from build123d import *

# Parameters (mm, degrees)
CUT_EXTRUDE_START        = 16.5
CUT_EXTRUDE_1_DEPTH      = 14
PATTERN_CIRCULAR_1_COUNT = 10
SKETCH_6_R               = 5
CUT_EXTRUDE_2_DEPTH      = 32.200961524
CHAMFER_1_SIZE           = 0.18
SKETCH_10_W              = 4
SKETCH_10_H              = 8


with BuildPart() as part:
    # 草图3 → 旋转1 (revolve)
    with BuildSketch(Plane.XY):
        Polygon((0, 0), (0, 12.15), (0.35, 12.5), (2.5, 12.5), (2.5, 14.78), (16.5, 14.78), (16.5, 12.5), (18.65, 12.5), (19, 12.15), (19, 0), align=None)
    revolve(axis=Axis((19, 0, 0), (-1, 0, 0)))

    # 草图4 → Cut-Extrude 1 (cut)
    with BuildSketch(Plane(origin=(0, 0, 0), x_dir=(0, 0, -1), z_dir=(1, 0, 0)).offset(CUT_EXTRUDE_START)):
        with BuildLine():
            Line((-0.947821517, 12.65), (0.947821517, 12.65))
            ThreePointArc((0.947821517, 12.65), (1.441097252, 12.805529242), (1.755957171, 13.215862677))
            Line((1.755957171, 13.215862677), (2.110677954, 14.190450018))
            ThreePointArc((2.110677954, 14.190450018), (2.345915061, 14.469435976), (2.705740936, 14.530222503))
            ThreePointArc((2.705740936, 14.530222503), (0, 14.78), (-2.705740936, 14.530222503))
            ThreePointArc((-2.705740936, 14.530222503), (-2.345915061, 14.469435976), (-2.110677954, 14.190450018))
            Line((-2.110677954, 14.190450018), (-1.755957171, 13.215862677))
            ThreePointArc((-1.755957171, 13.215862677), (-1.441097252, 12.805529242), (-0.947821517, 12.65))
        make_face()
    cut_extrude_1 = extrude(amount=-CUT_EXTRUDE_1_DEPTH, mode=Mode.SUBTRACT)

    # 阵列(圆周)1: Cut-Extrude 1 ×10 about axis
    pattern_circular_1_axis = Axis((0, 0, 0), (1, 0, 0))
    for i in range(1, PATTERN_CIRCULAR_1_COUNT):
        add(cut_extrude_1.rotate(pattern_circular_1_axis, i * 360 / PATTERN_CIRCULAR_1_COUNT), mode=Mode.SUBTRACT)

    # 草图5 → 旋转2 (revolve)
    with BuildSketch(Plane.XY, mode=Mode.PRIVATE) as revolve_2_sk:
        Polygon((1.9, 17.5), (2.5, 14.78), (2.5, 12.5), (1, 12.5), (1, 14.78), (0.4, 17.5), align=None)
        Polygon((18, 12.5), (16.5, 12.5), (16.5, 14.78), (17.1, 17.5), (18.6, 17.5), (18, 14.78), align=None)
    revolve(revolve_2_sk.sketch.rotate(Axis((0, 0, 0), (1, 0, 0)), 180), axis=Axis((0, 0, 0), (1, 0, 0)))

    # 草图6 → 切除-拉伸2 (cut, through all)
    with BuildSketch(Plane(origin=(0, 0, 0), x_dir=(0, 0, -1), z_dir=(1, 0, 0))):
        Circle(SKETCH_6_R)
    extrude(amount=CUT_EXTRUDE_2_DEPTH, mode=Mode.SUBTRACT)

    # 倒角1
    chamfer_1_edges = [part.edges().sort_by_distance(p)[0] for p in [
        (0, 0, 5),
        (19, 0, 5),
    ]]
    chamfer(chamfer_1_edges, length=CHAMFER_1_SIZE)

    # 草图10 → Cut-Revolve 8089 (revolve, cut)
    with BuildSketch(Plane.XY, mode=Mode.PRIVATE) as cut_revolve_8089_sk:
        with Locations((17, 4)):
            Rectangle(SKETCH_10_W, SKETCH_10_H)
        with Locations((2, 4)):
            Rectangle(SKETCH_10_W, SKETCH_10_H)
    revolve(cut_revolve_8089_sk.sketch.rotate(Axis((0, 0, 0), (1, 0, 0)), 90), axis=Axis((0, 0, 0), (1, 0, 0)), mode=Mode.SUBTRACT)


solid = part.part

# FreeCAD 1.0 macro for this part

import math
import FreeCAD as App
import Part
import Sketcher
from FreeCAD import Vector
Q = App.Units.Quantity


def edges_at(feature, points):
    """Names of the edges that pass closest to the given points."""
    edges = feature.Shape.Edges
    near = lambda p: min(range(len(edges)), key=lambda i: edges[i].distToShape(Part.Vertex(*p))[0])
    return sorted({f"Edge{near(p) + 1}" for p in points})

doc = App.newDocument("Part")
params = doc.addObject("Spreadsheet::Sheet", "Params")
for row, (alias, value) in enumerate([
    ("sketch1_width", "19 mm"),
    ("sketch1_width2", "14 mm"),
    ("sketch1_width3", "2.15 mm"),
    ("sketch1_height", "12.15 mm"),
    ("sketch1_height2", "2.28 mm"),
    ("revolution_angle", "360 deg"),
    ("sketch2_radius", "0.86 mm"),
    ("sketch2_radius2", "0.53 mm"),
    ("sketch2_radius3", "14.78 mm"),
    ("pocket1_length", "14 mm"),
    ("sketch3_width", "1.5 mm"),
    ("sketch3_height", "2.28 mm"),
    ("revolution2_angle", "360 deg"),
    ("sketch4_diameter", "10 mm"),
    ("chamfer_size", "0.18 mm"),
    ("sketch5_width", "4 mm"),
    ("sketch5_height", "8 mm"),
    ("groove_angle", "360 deg"),
], start=1):
    params.set(f"A{row}", alias)
    params.set(f"B{row}", "=" + value)
    params.setAlias(f"B{row}", alias)

body = doc.addObject("PartDesign::Body", "Body")

# Sketch on XY plane
sketch1 = doc.addObject("Sketcher::SketchObject", "Sketch")
body.addObject(sketch1)
sketch1.AttachmentSupport = (doc.XY_Plane, [""])
sketch1.MapMode = "FlatFace"
sketch1.addGeometry([
    Part.LineSegment(Vector(0, 12.15, 0), Vector(0, 0, 0)),  # 0
    Part.LineSegment(Vector(0, 0, 0), Vector(19, 0, 0)),  # 1
    Part.LineSegment(Vector(19, 0, 0), Vector(19, 12.15, 0)),  # 2
    Part.LineSegment(Vector(19, 12.15, 0), Vector(18.65, 12.5, 0)),  # 3
    Part.LineSegment(Vector(18.65, 12.5, 0), Vector(16.5, 12.5, 0)),  # 4
    Part.LineSegment(Vector(16.5, 12.5, 0), Vector(16.5, 14.78, 0)),  # 5
    Part.LineSegment(Vector(16.5, 14.78, 0), Vector(2.5, 14.78, 0)),  # 6
    Part.LineSegment(Vector(2.5, 14.78, 0), Vector(2.5, 12.5, 0)),  # 7
    Part.LineSegment(Vector(2.5, 12.5, 0), Vector(0.35, 12.5, 0)),  # 8
    Part.LineSegment(Vector(0.35, 12.5, 0), Vector(0, 12.15, 0)),  # 9
], False)
sketch1.addConstraint([
    Sketcher.Constraint("Coincident", 0, 2, 1, 1),
    Sketcher.Constraint("Coincident", 1, 2, 2, 1),
    Sketcher.Constraint("Coincident", 2, 2, 3, 1),
    Sketcher.Constraint("Coincident", 3, 2, 4, 1),
    Sketcher.Constraint("Coincident", 4, 2, 5, 1),
    Sketcher.Constraint("Coincident", 5, 2, 6, 1),
    Sketcher.Constraint("Coincident", 6, 2, 7, 1),
    Sketcher.Constraint("Coincident", 7, 2, 8, 1),
    Sketcher.Constraint("Coincident", 8, 2, 9, 1),
    Sketcher.Constraint("Coincident", 9, 2, 0, 1),
    Sketcher.Constraint("Vertical", 0),
    Sketcher.Constraint("Horizontal", 1),
    Sketcher.Constraint("Vertical", 2),
    Sketcher.Constraint("Horizontal", 4),
    Sketcher.Constraint("Vertical", 5),
    Sketcher.Constraint("Horizontal", 6),
    Sketcher.Constraint("Vertical", 7),
    Sketcher.Constraint("Horizontal", 8),
    Sketcher.Constraint("Coincident", 0, 2, -1, 1),
    Sketcher.Constraint("Perpendicular", 3, 9),
    Sketcher.Constraint("Horizontal", 4, 2, 7, 2),
    Sketcher.Constraint("Horizontal", 2, 2, 9, 2),
    Sketcher.Constraint("Equal", 4, 8),
    Sketcher.Constraint("Equal", 3, 9),
    Sketcher.Constraint("DistanceX", 1, 1, 1, 2, 19.0),
    Sketcher.Constraint("DistanceX", 6, 2, 6, 1, 14.0),
    Sketcher.Constraint("DistanceX", 4, 2, 4, 1, 2.15),
    Sketcher.Constraint("DistanceY", 0, 2, 0, 1, 12.15),
    Sketcher.Constraint("DistanceY", 5, 1, 5, 2, 2.28),
])
sketch1.setExpression("Constraints[24]", "Params.sketch1_width")
sketch1.setExpression("Constraints[25]", "Params.sketch1_width2")
sketch1.setExpression("Constraints[26]", "Params.sketch1_width3")
sketch1.setExpression("Constraints[27]", "Params.sketch1_height")
sketch1.setExpression("Constraints[28]", "Params.sketch1_height2")
revolution = doc.addObject("PartDesign::Revolution", "Revolution")
body.addObject(revolution)
revolution.Profile = sketch1
revolution.ReferenceAxis = (sketch1, ["H_Axis"])
revolution.setExpression("Angle", "Params.revolution_angle")

# Sketch on YZ plane
sketch2 = doc.addObject("Sketcher::SketchObject", "Sketch001")
body.addObject(sketch2)
sketch2.AttachmentSupport = (doc.YZ_Plane, [""])
sketch2.MapMode = "FlatFace"
sketch2.AttachmentOffset = App.Placement(Vector(0, 0, 16.5), App.Rotation())
sketch2.addGeometry([
    Part.LineSegment(Vector(12.7, 0.9, 0), Vector(12.7, -0.9, 0)),  # 0
    Part.ArcOfCircle(Part.Circle(Vector(13.5, -0.9, 0), Vector(0, 0, 1), 0.9), math.radians(-180), math.radians(-110)),  # 1
    Part.LineSegment(Vector(13.2, -1.8, 0), Vector(14.2, -2.1, 0)),  # 2
    Part.ArcOfCircle(Part.Circle(Vector(14, -2.6, 0), Vector(0, 0, 1), 0.5), math.radians(-11), math.radians(70)),  # 3
    Part.ArcOfCircle(Part.Circle(Vector(0, 0, 0), Vector(0, 0, 1), 14.8), math.radians(-11), math.radians(11)),  # 4
    Part.ArcOfCircle(Part.Circle(Vector(14, 2.6, 0), Vector(0, 0, 1), 0.5), math.radians(-70), math.radians(11)),  # 5
    Part.LineSegment(Vector(14.2, 2.1, 0), Vector(13.2, 1.8, 0)),  # 6
    Part.ArcOfCircle(Part.Circle(Vector(13.5, 0.9, 0), Vector(0, 0, 1), 0.9), math.radians(110), math.radians(180)),  # 7
], False)
sketch2.addConstraint([
    Sketcher.Constraint("Tangent", 0, 2, 1, 1),
    Sketcher.Constraint("Tangent", 1, 2, 2, 1),
    Sketcher.Constraint("Tangent", 2, 2, 3, 2),
    Sketcher.Constraint("Tangent", 3, 1, 4, 1),
    Sketcher.Constraint("Tangent", 4, 2, 5, 2),
    Sketcher.Constraint("Tangent", 5, 1, 6, 1),
    Sketcher.Constraint("Tangent", 6, 2, 7, 1),
    Sketcher.Constraint("Tangent", 7, 2, 0, 1),
    Sketcher.Constraint("Vertical", 0),
    Sketcher.Constraint("Coincident", 4, 3, -1, 1),
    Sketcher.Constraint("Equal", 3, 5),
    Sketcher.Constraint("Equal", 1, 7),
    Sketcher.Constraint("Symmetric", 2, 2, 5, 1, -1),
    Sketcher.Constraint("Angle", 2, Q("-20 deg")),
    Sketcher.Constraint("Radius", 1, 0.86),
    Sketcher.Constraint("Radius", 3, 0.53),
    Sketcher.Constraint("Radius", 4, 14.78),
    Sketcher.Constraint("DistanceX", -1, 1, 1, 3, 13.51),
    Sketcher.Constraint("DistanceY", 2, 2, 7, 3, 3.058499),
])
sketch2.setExpression("Constraints[14]", "Params.sketch2_radius")
sketch2.setExpression("Constraints[15]", "Params.sketch2_radius2")
sketch2.setExpression("Constraints[16]", "Params.sketch2_radius3")
pocket1 = doc.addObject("PartDesign::Pocket", "Pocket")
body.addObject(pocket1)
pocket1.Profile = sketch2
pocket1.setExpression("Length", "Params.pocket1_length")
doc.recompute()

polarpattern = doc.addObject("PartDesign::PolarPattern", "PolarPattern")
body.addObject(polarpattern)
polarpattern.Originals = [pocket1]
polarpattern.Axis = (doc.X_Axis, [""])
polarpattern.Angle = 360
polarpattern.Occurrences = 10
body.Tip = polarpattern

# Sketch on XY plane
sketch3 = doc.addObject("Sketcher::SketchObject", "Sketch002")
body.addObject(sketch3)
sketch3.AttachmentSupport = (doc.XY_Plane, [""])
sketch3.MapMode = "FlatFace"
sketch3.addGeometry([
    Part.LineSegment(Vector(2.5, 14.8, 0), Vector(1.9, 17.5, 0)),  # 0
    Part.LineSegment(Vector(1.9, 17.5, 0), Vector(0.4, 17.5, 0)),  # 1
    Part.LineSegment(Vector(0.4, 17.5, 0), Vector(1, 14.8, 0)),  # 2
    Part.LineSegment(Vector(1, 14.8, 0), Vector(1, 12.5, 0)),  # 3
    Part.LineSegment(Vector(1, 12.5, 0), Vector(2.5, 12.5, 0)),  # 4
    Part.LineSegment(Vector(2.5, 12.5, 0), Vector(2.5, 14.8, 0)),  # 5
    Part.LineSegment(Vector(16.5, 12.5, 0), Vector(18, 12.5, 0)),  # 6
    Part.LineSegment(Vector(18, 12.5, 0), Vector(18, 14.8, 0)),  # 7
    Part.LineSegment(Vector(18, 14.8, 0), Vector(18.6, 17.5, 0)),  # 8
    Part.LineSegment(Vector(18.6, 17.5, 0), Vector(17.1, 17.5, 0)),  # 9
    Part.LineSegment(Vector(17.1, 17.5, 0), Vector(16.5, 14.8, 0)),  # 10
    Part.LineSegment(Vector(16.5, 14.8, 0), Vector(16.5, 12.5, 0)),  # 11
], False)
sketch3.addConstraint([
    Sketcher.Constraint("Coincident", 0, 2, 1, 1),
    Sketcher.Constraint("Coincident", 1, 2, 2, 1),
    Sketcher.Constraint("Coincident", 2, 2, 3, 1),
    Sketcher.Constraint("Coincident", 3, 2, 4, 1),
    Sketcher.Constraint("Coincident", 4, 2, 5, 1),
    Sketcher.Constraint("Coincident", 5, 2, 0, 1),
    Sketcher.Constraint("Coincident", 6, 2, 7, 1),
    Sketcher.Constraint("Coincident", 7, 2, 8, 1),
    Sketcher.Constraint("Coincident", 8, 2, 9, 1),
    Sketcher.Constraint("Coincident", 9, 2, 10, 1),
    Sketcher.Constraint("Coincident", 10, 2, 11, 1),
    Sketcher.Constraint("Coincident", 11, 2, 6, 1),
    Sketcher.Constraint("Horizontal", 1),
    Sketcher.Constraint("Vertical", 3),
    Sketcher.Constraint("Horizontal", 4),
    Sketcher.Constraint("Vertical", 5),
    Sketcher.Constraint("Horizontal", 6),
    Sketcher.Constraint("Vertical", 7),
    Sketcher.Constraint("Horizontal", 9),
    Sketcher.Constraint("Vertical", 11),
    Sketcher.Constraint("Parallel", 0, 2),
    Sketcher.Constraint("Parallel", 8, 10),
    Sketcher.Constraint("Horizontal", 2, 2, 5, 2),
    Sketcher.Constraint("Horizontal", 4, 2, 6, 2),
    Sketcher.Constraint("Horizontal", 5, 2, 7, 2),
    Sketcher.Constraint("Horizontal", 1, 2, 8, 2),
    Sketcher.Constraint("Horizontal", 7, 2, 10, 2),
    Sketcher.Constraint("Equal", 4, 6),
    Sketcher.Constraint("Equal", 2, 8),
    Sketcher.Constraint("DistanceX", 1, 2, 1, 1, 1.5),
    Sketcher.Constraint("DistanceX", -1, 1, 2, 2, 1.0),
    Sketcher.Constraint("DistanceX", -1, 1, 6, 2, 18.0),
    Sketcher.Constraint("DistanceY", 3, 2, 1, 2, 5.0),
    Sketcher.Constraint("DistanceY", 3, 2, 3, 1, 2.28),
    Sketcher.Constraint("DistanceX", -1, 1, 0, 2, 1.9),
    Sketcher.Constraint("DistanceY", -1, 1, 0, 2, 17.5),
])
sketch3.setExpression("Constraints[29]", "Params.sketch3_width")
sketch3.setExpression("Constraints[33]", "Params.sketch3_height")
revolution2 = doc.addObject("PartDesign::Revolution", "Revolution001")
body.addObject(revolution2)
revolution2.Profile = sketch3
revolution2.ReferenceAxis = (sketch3, ["H_Axis"])
revolution2.setExpression("Angle", "Params.revolution2_angle")

# Sketch on YZ plane
sketch4 = doc.addObject("Sketcher::SketchObject", "Sketch003")
body.addObject(sketch4)
sketch4.AttachmentSupport = (doc.YZ_Plane, [""])
sketch4.MapMode = "FlatFace"
sketch4.addGeometry(Part.Circle(Vector(0, 0, 0), Vector(0, 0, 1), 5), False)
sketch4.addConstraint([
    Sketcher.Constraint("Coincident", 0, 3, -1, 1),
    Sketcher.Constraint("Diameter", 0, 10.0),
])
sketch4.setExpression("Constraints[1]", "Params.sketch4_diameter")
pocket2 = doc.addObject("PartDesign::Pocket", "Pocket001")
body.addObject(pocket2)
pocket2.Profile = sketch4
pocket2.Type = "ThroughAll"
pocket2.Reversed = True
doc.recompute()

chamfer = doc.addObject("PartDesign::Chamfer", "Chamfer")
body.addObject(chamfer)
chamfer.Base = (pocket2, edges_at(pocket2, [(0, 0, 5), (19, 0, 5)]))
chamfer.setExpression("Size", "Params.chamfer_size")

# Sketch on XY plane
sketch5 = doc.addObject("Sketcher::SketchObject", "Sketch004")
body.addObject(sketch5)
sketch5.AttachmentSupport = (doc.XY_Plane, [""])
sketch5.MapMode = "FlatFace"
sketch5.addGeometry([
    Part.LineSegment(Vector(15, 8, 0), Vector(15, 0, 0)),  # 0
    Part.LineSegment(Vector(15, 0, 0), Vector(19, 0, 0)),  # 1
    Part.LineSegment(Vector(19, 0, 0), Vector(19, 8, 0)),  # 2
    Part.LineSegment(Vector(19, 8, 0), Vector(15, 8, 0)),  # 3
    Part.LineSegment(Vector(0, 8, 0), Vector(0, 0, 0)),  # 4
    Part.LineSegment(Vector(0, 0, 0), Vector(4, 0, 0)),  # 5
    Part.LineSegment(Vector(4, 0, 0), Vector(4, 8, 0)),  # 6
    Part.LineSegment(Vector(4, 8, 0), Vector(0, 8, 0)),  # 7
], False)
sketch5.addConstraint([
    Sketcher.Constraint("Coincident", 0, 2, 1, 1),
    Sketcher.Constraint("Coincident", 1, 2, 2, 1),
    Sketcher.Constraint("Coincident", 2, 2, 3, 1),
    Sketcher.Constraint("Coincident", 3, 2, 0, 1),
    Sketcher.Constraint("Coincident", 4, 2, 5, 1),
    Sketcher.Constraint("Coincident", 5, 2, 6, 1),
    Sketcher.Constraint("Coincident", 6, 2, 7, 1),
    Sketcher.Constraint("Coincident", 7, 2, 4, 1),
    Sketcher.Constraint("Vertical", 0),
    Sketcher.Constraint("Horizontal", 1),
    Sketcher.Constraint("Vertical", 2),
    Sketcher.Constraint("Horizontal", 3),
    Sketcher.Constraint("Vertical", 4),
    Sketcher.Constraint("Horizontal", 5),
    Sketcher.Constraint("Vertical", 6),
    Sketcher.Constraint("Horizontal", 7),
    Sketcher.Constraint("Coincident", 4, 2, -1, 1),
    Sketcher.Constraint("PointOnObject", 0, 2, -1),
    Sketcher.Constraint("Horizontal", 3, 2, 6, 2),
    Sketcher.Constraint("Equal", 3, 5),
    Sketcher.Constraint("DistanceX", 1, 1, 1, 2, 4.0),
    Sketcher.Constraint("DistanceY", 0, 2, 0, 1, 8.0),
    Sketcher.Constraint("DistanceX", -1, 1, 0, 2, 15.0),
])
sketch5.setExpression("Constraints[20]", "Params.sketch5_width")
sketch5.setExpression("Constraints[21]", "Params.sketch5_height")
groove = doc.addObject("PartDesign::Groove", "Groove")
body.addObject(groove)
groove.Profile = sketch5
groove.ReferenceAxis = (sketch5, ["H_Axis"])
groove.setExpression("Angle", "Params.groove_angle")

doc.recompute()
